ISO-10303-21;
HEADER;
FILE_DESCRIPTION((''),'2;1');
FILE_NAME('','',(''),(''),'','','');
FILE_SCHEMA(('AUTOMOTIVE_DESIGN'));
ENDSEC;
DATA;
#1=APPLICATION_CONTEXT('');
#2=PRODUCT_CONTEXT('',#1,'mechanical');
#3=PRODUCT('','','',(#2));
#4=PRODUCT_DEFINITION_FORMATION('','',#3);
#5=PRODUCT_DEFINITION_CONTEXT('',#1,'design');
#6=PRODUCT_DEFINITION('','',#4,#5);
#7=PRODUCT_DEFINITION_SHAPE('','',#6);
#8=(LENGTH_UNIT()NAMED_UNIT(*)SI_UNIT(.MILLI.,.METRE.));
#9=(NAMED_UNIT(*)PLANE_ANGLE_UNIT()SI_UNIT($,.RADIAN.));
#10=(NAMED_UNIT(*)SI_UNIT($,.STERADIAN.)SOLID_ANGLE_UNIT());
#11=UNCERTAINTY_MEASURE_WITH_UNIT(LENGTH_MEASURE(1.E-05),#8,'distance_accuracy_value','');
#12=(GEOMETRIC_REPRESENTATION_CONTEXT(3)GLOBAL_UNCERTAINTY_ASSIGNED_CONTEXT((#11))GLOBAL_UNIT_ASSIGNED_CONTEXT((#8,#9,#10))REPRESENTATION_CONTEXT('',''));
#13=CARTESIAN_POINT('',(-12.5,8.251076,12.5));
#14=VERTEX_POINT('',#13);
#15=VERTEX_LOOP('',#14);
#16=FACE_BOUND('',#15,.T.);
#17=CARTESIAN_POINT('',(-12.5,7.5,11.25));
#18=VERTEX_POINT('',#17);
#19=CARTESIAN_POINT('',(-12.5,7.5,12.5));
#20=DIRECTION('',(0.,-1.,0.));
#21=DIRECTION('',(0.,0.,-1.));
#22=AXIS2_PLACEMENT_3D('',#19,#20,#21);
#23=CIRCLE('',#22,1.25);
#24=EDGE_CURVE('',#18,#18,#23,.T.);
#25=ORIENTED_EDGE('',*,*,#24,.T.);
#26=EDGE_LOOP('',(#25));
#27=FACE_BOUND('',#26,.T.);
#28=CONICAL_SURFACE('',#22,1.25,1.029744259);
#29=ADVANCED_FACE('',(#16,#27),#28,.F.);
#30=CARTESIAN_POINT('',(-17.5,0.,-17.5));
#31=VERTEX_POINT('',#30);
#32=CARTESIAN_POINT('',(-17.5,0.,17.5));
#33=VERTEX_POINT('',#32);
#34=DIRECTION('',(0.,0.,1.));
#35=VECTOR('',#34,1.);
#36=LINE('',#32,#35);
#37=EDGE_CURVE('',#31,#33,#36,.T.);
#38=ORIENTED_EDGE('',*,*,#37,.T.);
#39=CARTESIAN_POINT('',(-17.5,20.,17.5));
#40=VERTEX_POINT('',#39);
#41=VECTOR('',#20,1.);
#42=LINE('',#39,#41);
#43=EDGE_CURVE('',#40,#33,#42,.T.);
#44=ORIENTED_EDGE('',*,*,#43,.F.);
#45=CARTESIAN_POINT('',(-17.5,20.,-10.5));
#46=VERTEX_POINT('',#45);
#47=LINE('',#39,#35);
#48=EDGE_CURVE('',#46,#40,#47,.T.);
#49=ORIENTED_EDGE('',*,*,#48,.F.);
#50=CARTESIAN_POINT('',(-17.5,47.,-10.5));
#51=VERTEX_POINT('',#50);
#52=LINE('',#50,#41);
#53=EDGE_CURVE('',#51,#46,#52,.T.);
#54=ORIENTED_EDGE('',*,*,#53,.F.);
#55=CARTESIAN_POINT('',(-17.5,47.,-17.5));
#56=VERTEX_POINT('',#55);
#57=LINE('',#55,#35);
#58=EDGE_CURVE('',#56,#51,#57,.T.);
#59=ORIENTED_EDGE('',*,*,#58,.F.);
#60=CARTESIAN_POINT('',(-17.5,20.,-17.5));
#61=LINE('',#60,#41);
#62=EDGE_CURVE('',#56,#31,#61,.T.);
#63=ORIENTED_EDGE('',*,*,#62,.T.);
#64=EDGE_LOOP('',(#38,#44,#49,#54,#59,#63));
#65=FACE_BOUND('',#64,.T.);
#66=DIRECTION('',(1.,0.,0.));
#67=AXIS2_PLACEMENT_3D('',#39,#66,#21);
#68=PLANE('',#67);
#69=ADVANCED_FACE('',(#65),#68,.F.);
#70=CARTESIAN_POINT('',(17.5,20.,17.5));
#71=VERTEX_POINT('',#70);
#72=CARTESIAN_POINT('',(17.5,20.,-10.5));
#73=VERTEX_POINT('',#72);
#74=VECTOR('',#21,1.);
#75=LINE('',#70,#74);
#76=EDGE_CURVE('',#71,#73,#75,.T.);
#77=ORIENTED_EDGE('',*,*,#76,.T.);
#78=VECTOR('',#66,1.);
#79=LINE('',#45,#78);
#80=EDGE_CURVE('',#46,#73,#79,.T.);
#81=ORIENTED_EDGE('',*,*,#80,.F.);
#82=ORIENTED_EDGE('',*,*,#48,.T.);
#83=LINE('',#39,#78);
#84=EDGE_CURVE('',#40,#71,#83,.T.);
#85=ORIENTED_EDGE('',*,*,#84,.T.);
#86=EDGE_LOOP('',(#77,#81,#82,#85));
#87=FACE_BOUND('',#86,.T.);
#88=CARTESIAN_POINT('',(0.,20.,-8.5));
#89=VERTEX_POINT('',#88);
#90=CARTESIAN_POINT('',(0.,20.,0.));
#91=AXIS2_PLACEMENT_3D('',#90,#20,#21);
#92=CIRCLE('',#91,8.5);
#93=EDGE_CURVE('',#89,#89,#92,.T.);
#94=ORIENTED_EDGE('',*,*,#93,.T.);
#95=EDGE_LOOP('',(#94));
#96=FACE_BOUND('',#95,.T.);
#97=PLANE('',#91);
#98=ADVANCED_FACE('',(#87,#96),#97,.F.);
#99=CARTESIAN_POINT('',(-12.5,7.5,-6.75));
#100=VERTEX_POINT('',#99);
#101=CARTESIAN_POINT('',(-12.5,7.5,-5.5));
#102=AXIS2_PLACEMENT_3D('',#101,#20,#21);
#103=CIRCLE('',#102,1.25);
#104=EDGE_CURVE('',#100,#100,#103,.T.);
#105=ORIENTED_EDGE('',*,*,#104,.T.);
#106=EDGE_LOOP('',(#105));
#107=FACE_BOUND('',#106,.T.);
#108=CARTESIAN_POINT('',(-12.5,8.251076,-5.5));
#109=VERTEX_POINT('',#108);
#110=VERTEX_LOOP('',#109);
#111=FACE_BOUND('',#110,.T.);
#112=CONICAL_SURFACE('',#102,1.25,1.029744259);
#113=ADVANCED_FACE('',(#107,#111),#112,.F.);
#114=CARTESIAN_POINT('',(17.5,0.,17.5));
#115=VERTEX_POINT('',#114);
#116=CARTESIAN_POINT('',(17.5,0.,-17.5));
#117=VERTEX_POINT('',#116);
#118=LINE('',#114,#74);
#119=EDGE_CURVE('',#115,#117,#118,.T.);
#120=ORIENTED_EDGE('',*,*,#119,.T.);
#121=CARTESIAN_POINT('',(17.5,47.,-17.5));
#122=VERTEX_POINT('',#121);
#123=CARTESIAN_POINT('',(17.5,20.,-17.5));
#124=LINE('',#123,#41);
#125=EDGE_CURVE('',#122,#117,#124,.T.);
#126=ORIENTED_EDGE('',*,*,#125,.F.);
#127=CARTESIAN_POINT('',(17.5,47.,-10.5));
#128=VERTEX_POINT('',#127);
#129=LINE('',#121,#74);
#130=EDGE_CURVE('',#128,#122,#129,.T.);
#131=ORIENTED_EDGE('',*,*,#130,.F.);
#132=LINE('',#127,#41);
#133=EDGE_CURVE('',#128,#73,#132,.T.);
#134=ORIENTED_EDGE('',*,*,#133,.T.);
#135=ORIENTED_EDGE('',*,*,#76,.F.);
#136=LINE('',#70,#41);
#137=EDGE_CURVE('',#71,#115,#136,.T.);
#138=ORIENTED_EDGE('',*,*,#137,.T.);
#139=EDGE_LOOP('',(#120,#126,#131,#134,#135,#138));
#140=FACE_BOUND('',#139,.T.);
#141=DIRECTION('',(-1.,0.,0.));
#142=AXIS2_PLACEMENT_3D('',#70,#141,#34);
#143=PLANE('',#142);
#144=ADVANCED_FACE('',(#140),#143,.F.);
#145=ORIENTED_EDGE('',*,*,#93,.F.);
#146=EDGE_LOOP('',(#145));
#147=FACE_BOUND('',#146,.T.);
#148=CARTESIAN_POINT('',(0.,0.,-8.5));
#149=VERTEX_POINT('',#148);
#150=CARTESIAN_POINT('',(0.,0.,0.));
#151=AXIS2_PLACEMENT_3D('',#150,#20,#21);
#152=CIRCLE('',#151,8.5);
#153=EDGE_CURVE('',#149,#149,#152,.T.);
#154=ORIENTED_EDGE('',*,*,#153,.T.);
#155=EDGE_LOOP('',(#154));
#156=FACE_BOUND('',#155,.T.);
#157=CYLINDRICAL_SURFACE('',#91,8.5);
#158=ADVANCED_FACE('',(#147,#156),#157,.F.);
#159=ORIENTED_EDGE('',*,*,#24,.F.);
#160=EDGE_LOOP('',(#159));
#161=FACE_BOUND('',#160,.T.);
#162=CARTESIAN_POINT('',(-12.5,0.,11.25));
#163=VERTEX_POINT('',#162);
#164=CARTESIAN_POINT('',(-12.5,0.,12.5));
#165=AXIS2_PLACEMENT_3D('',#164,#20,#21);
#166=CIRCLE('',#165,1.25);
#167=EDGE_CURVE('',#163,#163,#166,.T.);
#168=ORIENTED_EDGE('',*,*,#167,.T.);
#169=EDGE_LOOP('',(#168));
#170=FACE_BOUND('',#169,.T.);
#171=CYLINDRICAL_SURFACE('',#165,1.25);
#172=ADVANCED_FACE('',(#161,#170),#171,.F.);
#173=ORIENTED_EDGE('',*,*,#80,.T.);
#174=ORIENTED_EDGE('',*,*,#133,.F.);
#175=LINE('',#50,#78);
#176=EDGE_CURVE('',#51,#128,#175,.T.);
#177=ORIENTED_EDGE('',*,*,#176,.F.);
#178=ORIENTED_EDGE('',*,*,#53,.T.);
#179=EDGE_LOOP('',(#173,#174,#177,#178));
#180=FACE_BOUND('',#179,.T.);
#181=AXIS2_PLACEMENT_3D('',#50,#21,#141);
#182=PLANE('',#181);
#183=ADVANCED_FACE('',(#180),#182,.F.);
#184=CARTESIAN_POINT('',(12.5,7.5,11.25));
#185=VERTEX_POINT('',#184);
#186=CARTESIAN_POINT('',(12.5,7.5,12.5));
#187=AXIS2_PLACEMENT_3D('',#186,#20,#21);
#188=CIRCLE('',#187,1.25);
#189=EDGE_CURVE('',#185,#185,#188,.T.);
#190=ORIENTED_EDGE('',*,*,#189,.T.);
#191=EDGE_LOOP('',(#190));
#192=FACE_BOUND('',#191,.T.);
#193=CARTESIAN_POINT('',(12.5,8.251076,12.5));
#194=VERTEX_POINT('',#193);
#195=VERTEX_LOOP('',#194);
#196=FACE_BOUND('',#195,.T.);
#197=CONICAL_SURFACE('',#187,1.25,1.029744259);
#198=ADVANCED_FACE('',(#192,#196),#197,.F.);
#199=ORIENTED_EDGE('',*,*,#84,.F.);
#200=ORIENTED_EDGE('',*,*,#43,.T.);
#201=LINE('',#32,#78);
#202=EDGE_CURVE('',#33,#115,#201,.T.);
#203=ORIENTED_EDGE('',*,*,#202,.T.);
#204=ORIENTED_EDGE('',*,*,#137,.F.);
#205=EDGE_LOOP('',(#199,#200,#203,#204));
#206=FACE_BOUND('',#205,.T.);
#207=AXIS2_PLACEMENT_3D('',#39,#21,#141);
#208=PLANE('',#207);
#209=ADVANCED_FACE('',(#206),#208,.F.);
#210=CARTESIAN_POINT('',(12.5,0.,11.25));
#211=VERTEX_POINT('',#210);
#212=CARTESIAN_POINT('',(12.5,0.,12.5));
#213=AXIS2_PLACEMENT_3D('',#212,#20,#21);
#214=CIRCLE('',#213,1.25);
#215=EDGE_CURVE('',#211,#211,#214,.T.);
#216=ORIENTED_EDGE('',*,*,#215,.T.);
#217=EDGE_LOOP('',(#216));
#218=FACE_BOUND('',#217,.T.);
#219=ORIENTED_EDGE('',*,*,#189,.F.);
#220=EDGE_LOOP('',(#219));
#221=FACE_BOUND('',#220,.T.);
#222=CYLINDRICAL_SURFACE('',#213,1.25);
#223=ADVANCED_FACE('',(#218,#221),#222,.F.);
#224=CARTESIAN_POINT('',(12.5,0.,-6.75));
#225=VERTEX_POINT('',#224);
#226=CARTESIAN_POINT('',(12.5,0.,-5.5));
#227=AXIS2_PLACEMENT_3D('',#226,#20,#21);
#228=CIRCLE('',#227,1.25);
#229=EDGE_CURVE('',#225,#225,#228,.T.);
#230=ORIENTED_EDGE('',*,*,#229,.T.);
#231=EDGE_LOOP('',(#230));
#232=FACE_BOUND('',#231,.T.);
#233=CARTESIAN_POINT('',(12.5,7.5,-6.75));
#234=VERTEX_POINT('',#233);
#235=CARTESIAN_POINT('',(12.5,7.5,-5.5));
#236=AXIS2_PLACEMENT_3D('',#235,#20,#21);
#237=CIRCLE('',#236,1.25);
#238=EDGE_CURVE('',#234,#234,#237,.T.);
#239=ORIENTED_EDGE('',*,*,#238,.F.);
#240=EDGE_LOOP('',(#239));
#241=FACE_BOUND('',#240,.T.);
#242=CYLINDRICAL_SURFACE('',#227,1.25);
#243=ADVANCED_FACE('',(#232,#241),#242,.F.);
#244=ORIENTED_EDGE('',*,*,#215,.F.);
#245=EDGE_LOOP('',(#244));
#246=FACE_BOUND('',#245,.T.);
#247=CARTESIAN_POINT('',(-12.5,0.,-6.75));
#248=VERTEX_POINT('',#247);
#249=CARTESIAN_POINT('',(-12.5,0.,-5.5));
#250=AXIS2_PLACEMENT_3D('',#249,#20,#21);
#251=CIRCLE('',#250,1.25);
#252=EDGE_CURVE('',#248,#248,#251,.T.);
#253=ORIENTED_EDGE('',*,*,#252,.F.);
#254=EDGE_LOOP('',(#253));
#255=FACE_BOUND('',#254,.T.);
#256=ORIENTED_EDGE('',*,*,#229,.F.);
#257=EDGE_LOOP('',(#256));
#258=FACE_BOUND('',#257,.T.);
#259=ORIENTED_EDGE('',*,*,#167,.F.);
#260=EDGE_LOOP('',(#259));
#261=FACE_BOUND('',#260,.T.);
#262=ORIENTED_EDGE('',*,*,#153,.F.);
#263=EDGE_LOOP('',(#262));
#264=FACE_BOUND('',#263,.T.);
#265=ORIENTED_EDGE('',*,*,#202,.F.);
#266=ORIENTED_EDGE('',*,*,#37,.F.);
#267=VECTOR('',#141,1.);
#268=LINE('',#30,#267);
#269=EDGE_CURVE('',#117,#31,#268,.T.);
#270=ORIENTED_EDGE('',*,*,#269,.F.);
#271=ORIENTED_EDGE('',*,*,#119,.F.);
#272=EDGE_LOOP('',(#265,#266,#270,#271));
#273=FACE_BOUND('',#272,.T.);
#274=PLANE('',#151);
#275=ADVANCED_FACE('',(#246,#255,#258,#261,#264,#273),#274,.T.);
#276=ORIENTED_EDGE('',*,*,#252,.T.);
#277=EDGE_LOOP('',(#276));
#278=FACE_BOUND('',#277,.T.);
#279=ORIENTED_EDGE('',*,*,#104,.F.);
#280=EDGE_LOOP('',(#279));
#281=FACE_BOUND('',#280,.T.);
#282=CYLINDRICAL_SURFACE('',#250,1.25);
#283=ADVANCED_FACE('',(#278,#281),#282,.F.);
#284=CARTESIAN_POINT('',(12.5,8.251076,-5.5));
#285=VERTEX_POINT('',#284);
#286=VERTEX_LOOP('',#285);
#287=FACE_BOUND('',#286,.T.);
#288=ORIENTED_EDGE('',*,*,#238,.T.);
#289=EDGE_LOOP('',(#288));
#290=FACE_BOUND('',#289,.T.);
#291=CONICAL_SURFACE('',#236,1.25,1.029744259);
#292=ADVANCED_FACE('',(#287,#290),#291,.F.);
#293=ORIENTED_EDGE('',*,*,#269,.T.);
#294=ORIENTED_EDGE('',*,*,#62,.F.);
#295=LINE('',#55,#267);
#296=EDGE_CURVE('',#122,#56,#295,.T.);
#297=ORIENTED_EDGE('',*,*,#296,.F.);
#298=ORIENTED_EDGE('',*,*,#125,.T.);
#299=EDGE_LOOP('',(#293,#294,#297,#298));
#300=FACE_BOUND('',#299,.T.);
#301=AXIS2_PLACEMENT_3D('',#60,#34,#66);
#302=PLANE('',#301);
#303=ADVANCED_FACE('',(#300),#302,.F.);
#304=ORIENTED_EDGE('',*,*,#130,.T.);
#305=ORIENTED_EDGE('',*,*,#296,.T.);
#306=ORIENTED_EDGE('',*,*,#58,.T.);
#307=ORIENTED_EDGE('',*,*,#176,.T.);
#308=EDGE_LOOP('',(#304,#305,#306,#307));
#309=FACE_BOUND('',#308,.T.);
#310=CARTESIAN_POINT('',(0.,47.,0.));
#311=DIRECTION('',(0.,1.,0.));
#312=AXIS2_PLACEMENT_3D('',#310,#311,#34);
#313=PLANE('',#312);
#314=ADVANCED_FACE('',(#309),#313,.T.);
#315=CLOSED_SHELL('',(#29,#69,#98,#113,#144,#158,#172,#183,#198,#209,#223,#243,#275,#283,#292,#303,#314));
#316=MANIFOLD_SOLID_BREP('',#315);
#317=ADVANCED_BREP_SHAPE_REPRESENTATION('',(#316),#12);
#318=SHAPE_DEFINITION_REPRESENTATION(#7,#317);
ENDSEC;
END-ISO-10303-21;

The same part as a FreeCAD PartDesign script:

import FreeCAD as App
import Part
import Sketcher

doc = App.newDocument("Part")
body = doc.addObject("PartDesign::Body", "Body")

sketch1 = body.newObject("Sketcher::SketchObject", "Sketch")
sketch1.AttachmentSupport = (doc.getObject("XZ_Plane"), [""])
sketch1.MapMode = "FlatFace"
sketch1.addGeometry(Part.LineSegment(App.Vector(-18, -18, 0), App.Vector(-18, 18, 0)), False)
sketch1.addGeometry(Part.LineSegment(App.Vector(-18, 18, 0), App.Vector(18, 18, 0)), False)
sketch1.addGeometry(Part.LineSegment(App.Vector(18, 18, 0), App.Vector(18, -18, 0)), False)
sketch1.addGeometry(Part.LineSegment(App.Vector(18, -18, 0), App.Vector(-18, -18, 0)), False)
sketch1.addConstraint(Sketcher.Constraint("Coincident", 0, 2, 1, 1))
sketch1.addConstraint(Sketcher.Constraint("Coincident", 1, 2, 2, 1))
sketch1.addConstraint(Sketcher.Constraint("Coincident", 2, 2, 3, 1))
sketch1.addConstraint(Sketcher.Constraint("Coincident", 3, 2, 0, 1))
sketch1.addConstraint(Sketcher.Constraint("Vertical", 0))
sketch1.addConstraint(Sketcher.Constraint("Horizontal", 1))
sketch1.addConstraint(Sketcher.Constraint("Vertical", 2))
sketch1.addConstraint(Sketcher.Constraint("Horizontal", 3))
sketch1.addConstraint(Sketcher.Constraint("Symmetric", 0, 2, 2, 2, -1, 1))
sketch1.addConstraint(Sketcher.Constraint("Equal", 3, 0))
sketch1.addConstraint(Sketcher.Constraint("DistanceX", 1, 1, 1, 2, 35.0))
pad1 = body.newObject("PartDesign::Pad", "Pad")
pad1.Profile = sketch1
pad1.Length = 20
pad1.Reversed = True

sketch2 = body.newObject("Sketcher::SketchObject", "Sketch001")
sketch2.AttachmentSupport = (doc.getObject("XZ_Plane"), [""])
sketch2.MapMode = "FlatFace"
sketch2.AttachmentOffset = App.Placement(App.Vector(0, 0, -20), App.Rotation())
sketch2.addGeometry(Part.LineSegment(App.Vector(-18, -18, 0), App.Vector(-18, -10, 0)), False)
sketch2.addGeometry(Part.LineSegment(App.Vector(-18, -10, 0), App.Vector(18, -10, 0)), False)
sketch2.addGeometry(Part.LineSegment(App.Vector(18, -10, 0), App.Vector(18, -18, 0)), False)
sketch2.addGeometry(Part.LineSegment(App.Vector(18, -18, 0), App.Vector(-18, -18, 0)), False)
sketch2.addConstraint(Sketcher.Constraint("Coincident", 0, 2, 1, 1))
sketch2.addConstraint(Sketcher.Constraint("Coincident", 1, 2, 2, 1))
sketch2.addConstraint(Sketcher.Constraint("Coincident", 2, 2, 3, 1))
sketch2.addConstraint(Sketcher.Constraint("Coincident", 3, 2, 0, 1))
sketch2.addConstraint(Sketcher.Constraint("Vertical", 0))
sketch2.addConstraint(Sketcher.Constraint("Horizontal", 1))
sketch2.addConstraint(Sketcher.Constraint("Vertical", 2))
sketch2.addConstraint(Sketcher.Constraint("Horizontal", 3))
sketch2.addConstraint(Sketcher.Constraint("DistanceX", 1, 1, 1, 2, 35.0))
sketch2.addConstraint(Sketcher.Constraint("DistanceY", 0, 1, 0, 2, 7.0))
sketch2.addConstraint(Sketcher.Constraint("DistanceX", 0, 2, -1, 1, 17.5))
sketch2.addConstraint(Sketcher.Constraint("DistanceY", 0, 2, -1, 1, 10.5))
pad2 = body.newObject("PartDesign::Pad", "Pad001")
pad2.Profile = sketch2
pad2.Length = 27
pad2.Reversed = True

sketch3 = body.newObject("Sketcher::SketchObject", "Sketch002")
sketch3.AttachmentSupport = (doc.getObject("XZ_Plane"), [""])
sketch3.MapMode = "FlatFace"
sketch3.addGeometry(Part.Circle(App.Vector(0, 0, 0), App.Vector(0, 0, 1), 8), False)
sketch3.addConstraint(Sketcher.Constraint("Coincident", 0, 3, -1, 1))
sketch3.addConstraint(Sketcher.Constraint("Diameter", 0, 17.0))
pocket1 = body.newObject("PartDesign::Pocket", "Pocket")
pocket1.Profile = sketch3
pocket1.Length = 20

sketch4 = body.newObject("Sketcher::SketchObject", "Sketch003")
sketch4.AttachmentSupport = (doc.getObject("XZ_Plane"), [""])
sketch4.MapMode = "FlatFace"
sketch4.addGeometry(Part.Circle(App.Vector(12.5, -5.5, 0), App.Vector(0, 0, 1), 1.2), False)
sketch4.addGeometry(Part.Circle(App.Vector(-12.5, -5.5, 0), App.Vector(0, 0, 1), 1.2), False)
sketch4.addGeometry(Part.Circle(App.Vector(-12.5, 12.5, 0), App.Vector(0, 0, 1), 1.2), False)
sketch4.addGeometry(Part.Circle(App.Vector(12.5, 12.5, 0), App.Vector(0, 0, 1), 1.2), False)
sketch4.addConstraint(Sketcher.Constraint("Equal", 0, 1))
sketch4.addConstraint(Sketcher.Constraint("Equal", 1, 2))
sketch4.addConstraint(Sketcher.Constraint("Equal", 2, 3))
sketch4.addConstraint(Sketcher.Constraint("Symmetric", 0, 3, 1, 3, -2))
sketch4.addConstraint(Sketcher.Constraint("Symmetric", 2, 3, 3, 3, -2))
sketch4.addConstraint(Sketcher.Constraint("Vertical", 1, 3, 2, 3))
sketch4.addConstraint(Sketcher.Constraint("Diameter", 0, 2.5))
sketch4.addConstraint(Sketcher.Constraint("DistanceX", 1, 3, 0, 3, 25.0))
sketch4.addConstraint(Sketcher.Constraint("DistanceY", 1, 3, 2, 3, 18.0))
sketch4.addConstraint(Sketcher.Constraint("DistanceY", 0, 3, -1, 1, 5.5))
doc.recompute()
hole = body.newObject("PartDesign::Hole", "Hole")
hole.Profile = sketch4
hole.ThreadType = "None"
hole.Diameter = 2.5
hole.DepthType = "Dimension"
hole.Depth = 7.5
hole.DrillPoint = "Angled"
hole.DrillPointAngle = 118

doc.recompute()
